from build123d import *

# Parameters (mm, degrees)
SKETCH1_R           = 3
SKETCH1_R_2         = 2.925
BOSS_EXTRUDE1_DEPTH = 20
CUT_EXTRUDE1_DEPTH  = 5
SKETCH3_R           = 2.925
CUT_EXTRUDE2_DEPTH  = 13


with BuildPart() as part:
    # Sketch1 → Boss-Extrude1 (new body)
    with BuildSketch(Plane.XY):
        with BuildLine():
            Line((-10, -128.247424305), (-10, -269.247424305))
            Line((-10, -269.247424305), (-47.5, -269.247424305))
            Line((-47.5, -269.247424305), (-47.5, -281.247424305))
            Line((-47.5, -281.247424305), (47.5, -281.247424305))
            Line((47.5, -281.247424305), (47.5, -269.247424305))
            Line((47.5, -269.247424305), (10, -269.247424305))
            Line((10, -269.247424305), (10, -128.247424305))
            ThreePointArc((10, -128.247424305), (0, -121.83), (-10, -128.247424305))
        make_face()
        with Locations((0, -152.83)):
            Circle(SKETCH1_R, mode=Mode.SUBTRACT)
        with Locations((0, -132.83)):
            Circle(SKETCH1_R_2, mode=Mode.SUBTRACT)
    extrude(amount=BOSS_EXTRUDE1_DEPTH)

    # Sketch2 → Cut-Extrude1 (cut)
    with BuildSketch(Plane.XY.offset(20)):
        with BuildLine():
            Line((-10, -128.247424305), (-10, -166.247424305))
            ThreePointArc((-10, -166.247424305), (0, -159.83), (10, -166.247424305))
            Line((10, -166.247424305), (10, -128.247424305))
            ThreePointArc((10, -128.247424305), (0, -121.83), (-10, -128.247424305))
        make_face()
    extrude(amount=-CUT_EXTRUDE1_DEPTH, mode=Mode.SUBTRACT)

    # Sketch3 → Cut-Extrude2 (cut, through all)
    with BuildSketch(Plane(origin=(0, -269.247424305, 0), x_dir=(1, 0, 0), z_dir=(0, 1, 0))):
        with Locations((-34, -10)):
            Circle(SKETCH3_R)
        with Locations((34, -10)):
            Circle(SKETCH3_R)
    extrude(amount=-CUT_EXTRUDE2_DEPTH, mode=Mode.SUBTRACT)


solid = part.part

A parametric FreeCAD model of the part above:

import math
import FreeCAD as App
import Part
import Sketcher
Q = App.Units.Quantity

doc = App.newDocument("Part")
body = doc.addObject("PartDesign::Body", "Body")

# Sketch on XY plane
sketch1 = body.newObject("Sketcher::SketchObject", "Sketch")
sketch1.AttachmentSupport = (doc.getObject("XY_Plane"), [""])
sketch1.MapMode = "FlatFace"
sketch1.addGeometry(Part.LineSegment(App.Vector(-10, -128.2, 0), App.Vector(-10, -269.2, 0)), False)
sketch1.addGeometry(Part.LineSegment(App.Vector(-10, -269.2, 0), App.Vector(-47.5, -269.2, 0)), False)
sketch1.addGeometry(Part.LineSegment(App.Vector(-47.5, -269.2, 0), App.Vector(-47.5, -281.2, 0)), False)
sketch1.addGeometry(Part.LineSegment(App.Vector(-47.5, -281.2, 0), App.Vector(47.5, -281.2, 0)), False)
sketch1.addGeometry(Part.LineSegment(App.Vector(47.5, -281.2, 0), App.Vector(47.5, -269.2, 0)), False)
sketch1.addGeometry(Part.LineSegment(App.Vector(47.5, -269.2, 0), App.Vector(10, -269.2, 0)), False)
sketch1.addGeometry(Part.LineSegment(App.Vector(10, -269.2, 0), App.Vector(10, -128.2, 0)), False)
sketch1.addGeometry(Part.ArcOfCircle(Part.Circle(App.Vector(0, -132.8, 0), App.Vector(0, 0, 1), 11), math.radians(25), math.radians(155)), False)
sketch1.addGeometry(Part.Circle(App.Vector(0, -152.8, 0), App.Vector(0, 0, 1), 3), False)
sketch1.addGeometry(Part.Circle(App.Vector(0, -132.8, 0), App.Vector(0, 0, 1), 2.9), False)
sketch1.addConstraint(Sketcher.Constraint("Coincident", 0, 2, 1, 1))
sketch1.addConstraint(Sketcher.Constraint("Coincident", 1, 2, 2, 1))
sketch1.addConstraint(Sketcher.Constraint("Coincident", 2, 2, 3, 1))
sketch1.addConstraint(Sketcher.Constraint("Coincident", 3, 2, 4, 1))
sketch1.addConstraint(Sketcher.Constraint("Coincident", 4, 2, 5, 1))
sketch1.addConstraint(Sketcher.Constraint("Coincident", 5, 2, 6, 1))
sketch1.addConstraint(Sketcher.Constraint("Coincident", 6, 2, 7, 1))
sketch1.addConstraint(Sketcher.Constraint("Coincident", 7, 2, 0, 1))
sketch1.addConstraint(Sketcher.Constraint("Vertical", 0))
sketch1.addConstraint(Sketcher.Constraint("Horizontal", 1))
sketch1.addConstraint(Sketcher.Constraint("Vertical", 2))
sketch1.addConstraint(Sketcher.Constraint("Horizontal", 3))
sketch1.addConstraint(Sketcher.Constraint("Vertical", 4))
sketch1.addConstraint(Sketcher.Constraint("Horizontal", 5))
sketch1.addConstraint(Sketcher.Constraint("Vertical", 6))
sketch1.addConstraint(Sketcher.Constraint("Coincident", 9, 3, 7, 3))
sketch1.addConstraint(Sketcher.Constraint("Symmetric", 1, 2, 4, 2, -2))
sketch1.addConstraint(Sketcher.Constraint("Symmetric", 6, 2, 7, 2, -2))
sketch1.addConstraint(Sketcher.Constraint("PointOnObject", 8, 3, -2))
sketch1.addConstraint(Sketcher.Constraint("Diameter", 8, Q("6 mm")))
sketch1.addConstraint(Sketcher.Constraint("Radius", 7, Q("11 mm")))
sketch1.addConstraint(Sketcher.Constraint("Diameter", 9, Q("5.85 mm")))
sketch1.addConstraint(Sketcher.Constraint("DistanceX", 3, 1, 3, 2, Q("95 mm")))
sketch1.addConstraint(Sketcher.Constraint("DistanceY", 0, 2, 0, 1, Q("141 mm")))
sketch1.addConstraint(Sketcher.Constraint("DistanceY", 2, 2, 2, 1, Q("12 mm")))
sketch1.addConstraint(Sketcher.Constraint("DistanceX", 1, 2, 1, 1, Q("37.5 mm")))
sketch1.addConstraint(Sketcher.Constraint("DistanceY", 8, 3, 7, 3, Q("20 mm")))
sketch1.addConstraint(Sketcher.Constraint("DistanceY", 7, 3, -1, 1, Q("132.83 mm")))
pad1 = body.newObject("PartDesign::Pad", "Pad")
pad1.Profile = sketch1
pad1.Length = 20

# Sketch on XY plane
sketch2 = body.newObject("Sketcher::SketchObject", "Sketch001")
sketch2.AttachmentSupport = (doc.getObject("XY_Plane"), [""])
sketch2.MapMode = "FlatFace"
sketch2.AttachmentOffset = App.Placement(App.Vector(0, 0, 20), App.Rotation())
sketch2.addGeometry(Part.LineSegment(App.Vector(-10, -128, 0), App.Vector(-10, -166, 0)), False)
sketch2.addGeometry(Part.ArcOfCircle(Part.Circle(App.Vector(0, -171, 0), App.Vector(0, 0, 1), 11), math.radians(25), math.radians(155)), False)
sketch2.addGeometry(Part.LineSegment(App.Vector(10, -166, 0), App.Vector(10, -128, 0)), False)
sketch2.addGeometry(Part.ArcOfCircle(Part.Circle(App.Vector(0, -133, 0), App.Vector(0, 0, 1), 11), math.radians(25), math.radians(155)), False)
sketch2.addConstraint(Sketcher.Constraint("Coincident", 0, 2, 1, 2))
sketch2.addConstraint(Sketcher.Constraint("Coincident", 1, 1, 2, 1))
sketch2.addConstraint(Sketcher.Constraint("Coincident", 2, 2, 3, 1))
sketch2.addConstraint(Sketcher.Constraint("Coincident", 3, 2, 0, 1))
sketch2.addConstraint(Sketcher.Constraint("Vertical", 0))
sketch2.addConstraint(Sketcher.Constraint("Vertical", 2))
sketch2.addConstraint(Sketcher.Constraint("Equal", 1, 3))
sketch2.addConstraint(Sketcher.Constraint("Symmetric", 0, 2, 1, 1, -2))
sketch2.addConstraint(Sketcher.Constraint("PointOnObject", 3, 3, -2))
sketch2.addConstraint(Sketcher.Constraint("Radius", 1, Q("11 mm")))
sketch2.addConstraint(Sketcher.Constraint("DistanceY", 0, 2, 0, 1, Q("38 mm")))
sketch2.addConstraint(Sketcher.Constraint("DistanceX", 0, 2, -1, 1, Q("10 mm")))
sketch2.addConstraint(Sketcher.Constraint("DistanceY", 1, 3, -1, 1, Q("170.83 mm")))
pocket1 = body.newObject("PartDesign::Pocket", "Pocket")
pocket1.Profile = sketch2
pocket1.Length = 5

# Sketch on XZ plane
sketch3 = body.newObject("Sketcher::SketchObject", "Sketch002")
sketch3.AttachmentSupport = (doc.getObject("XZ_Plane"), [""])
sketch3.MapMode = "FlatFace"
sketch3.AttachmentOffset = App.Placement(App.Vector(0, 0, 269.247424), App.Rotation())
sketch3.addGeometry(Part.Circle(App.Vector(-34, 10, 0), App.Vector(0, 0, 1), 2.9), False)
sketch3.addGeometry(Part.Circle(App.Vector(34, 10, 0), App.Vector(0, 0, 1), 2.9), False)
sketch3.addConstraint(Sketcher.Constraint("Equal", 0, 1))
sketch3.addConstraint(Sketcher.Constraint("Symmetric", 0, 3, 1, 3, -2))
sketch3.addConstraint(Sketcher.Constraint("Diameter", 0, Q("5.85 mm")))
sketch3.addConstraint(Sketcher.Constraint("DistanceX", 0, 3, -1, 1, Q("34 mm")))
sketch3.addConstraint(Sketcher.Constraint("DistanceY", -1, 1, 0, 3, Q("10 mm")))
pocket2 = body.newObject("PartDesign::Pocket", "Pocket001")
pocket2.Profile = sketch3
pocket2.Type = "ThroughAll"
pocket2.Reversed = True

doc.recompute()
